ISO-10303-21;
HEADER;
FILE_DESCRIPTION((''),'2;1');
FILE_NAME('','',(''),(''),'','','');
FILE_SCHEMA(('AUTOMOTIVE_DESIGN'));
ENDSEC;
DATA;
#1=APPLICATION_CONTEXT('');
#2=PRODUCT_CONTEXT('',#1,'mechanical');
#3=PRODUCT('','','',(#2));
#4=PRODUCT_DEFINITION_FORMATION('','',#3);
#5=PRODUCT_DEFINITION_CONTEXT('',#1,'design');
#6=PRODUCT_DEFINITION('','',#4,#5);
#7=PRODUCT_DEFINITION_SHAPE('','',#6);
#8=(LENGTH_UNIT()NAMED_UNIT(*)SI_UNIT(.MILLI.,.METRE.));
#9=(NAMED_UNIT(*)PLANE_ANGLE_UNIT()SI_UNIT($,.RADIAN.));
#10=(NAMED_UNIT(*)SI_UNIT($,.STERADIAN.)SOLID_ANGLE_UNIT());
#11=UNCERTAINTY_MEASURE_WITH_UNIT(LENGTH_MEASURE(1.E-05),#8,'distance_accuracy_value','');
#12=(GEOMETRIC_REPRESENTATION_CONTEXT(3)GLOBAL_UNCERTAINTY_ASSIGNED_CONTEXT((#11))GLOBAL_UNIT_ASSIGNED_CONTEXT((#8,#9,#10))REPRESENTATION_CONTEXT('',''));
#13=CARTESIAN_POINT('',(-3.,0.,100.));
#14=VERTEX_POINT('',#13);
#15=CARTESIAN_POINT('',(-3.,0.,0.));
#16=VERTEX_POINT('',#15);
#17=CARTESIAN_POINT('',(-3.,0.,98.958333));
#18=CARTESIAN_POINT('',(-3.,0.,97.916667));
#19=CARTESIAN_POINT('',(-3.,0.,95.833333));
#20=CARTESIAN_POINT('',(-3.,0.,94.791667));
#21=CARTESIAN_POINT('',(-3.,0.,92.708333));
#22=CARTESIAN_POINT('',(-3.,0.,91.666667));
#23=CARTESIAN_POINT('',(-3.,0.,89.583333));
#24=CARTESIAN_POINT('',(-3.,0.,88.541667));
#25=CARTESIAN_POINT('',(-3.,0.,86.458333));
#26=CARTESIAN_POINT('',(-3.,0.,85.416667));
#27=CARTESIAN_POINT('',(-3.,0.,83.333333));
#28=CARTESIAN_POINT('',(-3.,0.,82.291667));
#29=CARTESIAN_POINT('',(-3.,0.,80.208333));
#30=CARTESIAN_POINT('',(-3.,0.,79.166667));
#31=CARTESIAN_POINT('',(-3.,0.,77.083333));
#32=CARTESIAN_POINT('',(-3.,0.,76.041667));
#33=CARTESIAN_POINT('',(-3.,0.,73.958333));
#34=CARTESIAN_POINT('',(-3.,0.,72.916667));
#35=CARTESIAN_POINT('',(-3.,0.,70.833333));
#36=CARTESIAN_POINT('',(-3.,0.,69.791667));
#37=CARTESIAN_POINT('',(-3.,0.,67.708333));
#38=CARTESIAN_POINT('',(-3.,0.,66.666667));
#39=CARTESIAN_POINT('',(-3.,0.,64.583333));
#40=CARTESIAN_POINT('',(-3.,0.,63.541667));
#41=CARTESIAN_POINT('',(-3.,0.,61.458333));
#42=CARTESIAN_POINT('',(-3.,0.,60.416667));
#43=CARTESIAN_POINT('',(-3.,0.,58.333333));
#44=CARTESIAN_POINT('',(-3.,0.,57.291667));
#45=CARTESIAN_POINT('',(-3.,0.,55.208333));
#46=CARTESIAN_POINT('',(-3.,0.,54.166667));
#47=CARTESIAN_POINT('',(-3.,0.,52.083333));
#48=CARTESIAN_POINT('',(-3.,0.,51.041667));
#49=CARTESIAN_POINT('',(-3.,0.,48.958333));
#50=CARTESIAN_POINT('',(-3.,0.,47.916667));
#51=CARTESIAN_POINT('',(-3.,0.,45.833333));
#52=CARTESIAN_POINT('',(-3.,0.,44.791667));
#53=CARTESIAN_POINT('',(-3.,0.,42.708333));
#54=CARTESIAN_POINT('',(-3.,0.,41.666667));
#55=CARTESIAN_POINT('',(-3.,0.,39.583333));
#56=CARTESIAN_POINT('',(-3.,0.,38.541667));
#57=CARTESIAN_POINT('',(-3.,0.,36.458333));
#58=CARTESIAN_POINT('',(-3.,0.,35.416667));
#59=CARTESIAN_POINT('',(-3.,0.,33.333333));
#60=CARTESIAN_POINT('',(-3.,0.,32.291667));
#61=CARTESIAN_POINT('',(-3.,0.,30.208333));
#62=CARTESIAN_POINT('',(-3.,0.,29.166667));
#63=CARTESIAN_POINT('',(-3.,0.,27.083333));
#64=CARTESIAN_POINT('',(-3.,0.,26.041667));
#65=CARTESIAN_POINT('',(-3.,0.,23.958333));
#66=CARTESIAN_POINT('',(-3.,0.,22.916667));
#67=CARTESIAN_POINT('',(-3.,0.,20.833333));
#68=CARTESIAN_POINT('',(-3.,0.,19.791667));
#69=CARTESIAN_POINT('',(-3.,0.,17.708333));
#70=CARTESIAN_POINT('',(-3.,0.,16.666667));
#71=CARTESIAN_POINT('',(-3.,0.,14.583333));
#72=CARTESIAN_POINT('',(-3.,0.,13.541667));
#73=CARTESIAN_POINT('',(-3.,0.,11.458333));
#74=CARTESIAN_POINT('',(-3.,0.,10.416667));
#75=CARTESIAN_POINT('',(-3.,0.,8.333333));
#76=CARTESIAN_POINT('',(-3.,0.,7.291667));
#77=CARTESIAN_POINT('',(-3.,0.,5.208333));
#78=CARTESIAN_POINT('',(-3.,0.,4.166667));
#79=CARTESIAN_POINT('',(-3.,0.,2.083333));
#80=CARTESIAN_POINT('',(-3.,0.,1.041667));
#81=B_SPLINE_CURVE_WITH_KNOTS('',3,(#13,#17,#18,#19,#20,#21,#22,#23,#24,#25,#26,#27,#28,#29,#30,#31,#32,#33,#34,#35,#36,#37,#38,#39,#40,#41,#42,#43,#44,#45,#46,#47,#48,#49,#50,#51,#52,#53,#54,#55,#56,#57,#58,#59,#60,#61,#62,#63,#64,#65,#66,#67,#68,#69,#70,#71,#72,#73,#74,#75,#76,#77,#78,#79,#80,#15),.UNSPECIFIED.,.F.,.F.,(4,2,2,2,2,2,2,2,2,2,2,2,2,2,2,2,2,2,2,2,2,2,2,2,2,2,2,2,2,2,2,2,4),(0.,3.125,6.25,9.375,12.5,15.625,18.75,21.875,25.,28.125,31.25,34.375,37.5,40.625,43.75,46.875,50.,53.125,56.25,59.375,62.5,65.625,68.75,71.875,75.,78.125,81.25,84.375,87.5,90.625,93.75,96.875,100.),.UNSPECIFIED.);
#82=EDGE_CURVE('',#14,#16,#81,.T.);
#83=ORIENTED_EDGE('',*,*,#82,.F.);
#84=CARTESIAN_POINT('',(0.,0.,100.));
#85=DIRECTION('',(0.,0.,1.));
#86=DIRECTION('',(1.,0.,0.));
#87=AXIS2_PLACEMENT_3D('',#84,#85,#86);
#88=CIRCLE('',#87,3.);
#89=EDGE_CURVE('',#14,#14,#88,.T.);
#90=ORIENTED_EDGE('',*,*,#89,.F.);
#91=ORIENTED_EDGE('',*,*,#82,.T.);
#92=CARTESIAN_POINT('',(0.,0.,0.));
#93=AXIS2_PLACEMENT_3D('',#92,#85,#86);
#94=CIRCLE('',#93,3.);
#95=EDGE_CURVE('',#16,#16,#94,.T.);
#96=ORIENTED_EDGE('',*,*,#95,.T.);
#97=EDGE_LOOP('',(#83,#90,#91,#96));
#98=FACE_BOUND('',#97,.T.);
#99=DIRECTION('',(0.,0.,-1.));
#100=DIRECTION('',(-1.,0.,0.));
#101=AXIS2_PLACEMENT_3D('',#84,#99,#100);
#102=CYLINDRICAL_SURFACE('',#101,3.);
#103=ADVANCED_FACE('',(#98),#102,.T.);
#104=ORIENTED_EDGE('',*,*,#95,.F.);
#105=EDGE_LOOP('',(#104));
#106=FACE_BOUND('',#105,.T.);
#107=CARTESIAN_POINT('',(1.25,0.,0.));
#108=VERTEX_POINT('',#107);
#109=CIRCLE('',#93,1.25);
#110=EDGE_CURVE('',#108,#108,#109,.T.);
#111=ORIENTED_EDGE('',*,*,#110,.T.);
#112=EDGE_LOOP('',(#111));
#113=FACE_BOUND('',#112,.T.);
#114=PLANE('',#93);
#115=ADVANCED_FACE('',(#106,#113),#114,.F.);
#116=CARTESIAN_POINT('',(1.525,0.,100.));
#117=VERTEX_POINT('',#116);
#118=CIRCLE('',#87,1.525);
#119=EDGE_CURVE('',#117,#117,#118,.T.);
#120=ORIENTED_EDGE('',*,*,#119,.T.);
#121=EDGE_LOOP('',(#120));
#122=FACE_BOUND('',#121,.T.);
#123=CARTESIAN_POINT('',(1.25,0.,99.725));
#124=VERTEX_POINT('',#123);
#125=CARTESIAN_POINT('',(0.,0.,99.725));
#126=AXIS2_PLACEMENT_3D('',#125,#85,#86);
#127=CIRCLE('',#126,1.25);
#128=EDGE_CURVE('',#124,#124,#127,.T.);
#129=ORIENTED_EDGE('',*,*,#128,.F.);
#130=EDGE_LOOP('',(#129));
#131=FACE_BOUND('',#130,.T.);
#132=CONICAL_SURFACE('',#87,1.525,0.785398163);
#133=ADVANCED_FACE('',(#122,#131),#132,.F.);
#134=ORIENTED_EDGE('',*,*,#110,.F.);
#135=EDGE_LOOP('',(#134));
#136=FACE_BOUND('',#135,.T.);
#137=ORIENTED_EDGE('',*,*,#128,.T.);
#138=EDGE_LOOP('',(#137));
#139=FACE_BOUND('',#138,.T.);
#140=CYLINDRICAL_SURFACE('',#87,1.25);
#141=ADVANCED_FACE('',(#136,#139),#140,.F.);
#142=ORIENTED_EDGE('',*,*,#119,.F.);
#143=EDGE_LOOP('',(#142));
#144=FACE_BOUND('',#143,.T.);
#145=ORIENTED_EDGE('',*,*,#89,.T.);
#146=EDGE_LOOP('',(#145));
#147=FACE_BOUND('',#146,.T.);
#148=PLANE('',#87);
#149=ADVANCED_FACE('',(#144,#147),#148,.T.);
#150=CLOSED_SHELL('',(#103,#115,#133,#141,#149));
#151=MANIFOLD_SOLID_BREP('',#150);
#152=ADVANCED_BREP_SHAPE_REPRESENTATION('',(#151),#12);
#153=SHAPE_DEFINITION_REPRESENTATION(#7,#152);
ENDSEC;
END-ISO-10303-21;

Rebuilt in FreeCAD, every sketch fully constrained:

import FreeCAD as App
import Part
import Sketcher

V = App.Vector
Q = App.Units.Quantity

doc = App.newDocument("Part")
body = doc.addObject("PartDesign::Body", "Body")

sketch1 = body.newObject("Sketcher::SketchObject", "Sketch")
sketch1.AttachmentSupport = (doc.getObject("XY_Plane"), [""])
sketch1.MapMode = "FlatFace"
sketch1.addGeometry(Part.Circle(V(0, 0, 0), V(0, 0, 1), 3), False)
sketch1.addConstraint(Sketcher.Constraint("Coincident", 0, 3, -1, 1))
sketch1.addConstraint(Sketcher.Constraint("Diameter", 0, Q("6 mm")))
pad1 = body.newObject("PartDesign::Pad", "Pad")
pad1.Profile = sketch1
pad1.Length = 100

sketch2 = body.newObject("Sketcher::SketchObject", "Sketch001")
sketch2.AttachmentSupport = (doc.getObject("XY_Plane"), [""])
sketch2.MapMode = "FlatFace"
sketch2.AttachmentOffset = App.Placement(V(0, 0, 100), App.Rotation())
sketch2.addGeometry(Part.Circle(V(0, 0, 0), V(0, 0, 1), 1.2), False)
sketch2.addConstraint(Sketcher.Constraint("Coincident", 0, 3, -1, 1))
sketch2.addConstraint(Sketcher.Constraint("Diameter", 0, Q("2.5 mm")))
doc.recompute()
hole = body.newObject("PartDesign::Hole", "Hole")
hole.Profile = sketch2
hole.ThreadType = "None"
hole.Diameter = 2.5
hole.DepthType = "ThroughAll"
hole.HoleCutType = "Countersink"
hole.HoleCutDiameter = 3.05
hole.HoleCutCountersinkAngle = 90

doc.recompute()
